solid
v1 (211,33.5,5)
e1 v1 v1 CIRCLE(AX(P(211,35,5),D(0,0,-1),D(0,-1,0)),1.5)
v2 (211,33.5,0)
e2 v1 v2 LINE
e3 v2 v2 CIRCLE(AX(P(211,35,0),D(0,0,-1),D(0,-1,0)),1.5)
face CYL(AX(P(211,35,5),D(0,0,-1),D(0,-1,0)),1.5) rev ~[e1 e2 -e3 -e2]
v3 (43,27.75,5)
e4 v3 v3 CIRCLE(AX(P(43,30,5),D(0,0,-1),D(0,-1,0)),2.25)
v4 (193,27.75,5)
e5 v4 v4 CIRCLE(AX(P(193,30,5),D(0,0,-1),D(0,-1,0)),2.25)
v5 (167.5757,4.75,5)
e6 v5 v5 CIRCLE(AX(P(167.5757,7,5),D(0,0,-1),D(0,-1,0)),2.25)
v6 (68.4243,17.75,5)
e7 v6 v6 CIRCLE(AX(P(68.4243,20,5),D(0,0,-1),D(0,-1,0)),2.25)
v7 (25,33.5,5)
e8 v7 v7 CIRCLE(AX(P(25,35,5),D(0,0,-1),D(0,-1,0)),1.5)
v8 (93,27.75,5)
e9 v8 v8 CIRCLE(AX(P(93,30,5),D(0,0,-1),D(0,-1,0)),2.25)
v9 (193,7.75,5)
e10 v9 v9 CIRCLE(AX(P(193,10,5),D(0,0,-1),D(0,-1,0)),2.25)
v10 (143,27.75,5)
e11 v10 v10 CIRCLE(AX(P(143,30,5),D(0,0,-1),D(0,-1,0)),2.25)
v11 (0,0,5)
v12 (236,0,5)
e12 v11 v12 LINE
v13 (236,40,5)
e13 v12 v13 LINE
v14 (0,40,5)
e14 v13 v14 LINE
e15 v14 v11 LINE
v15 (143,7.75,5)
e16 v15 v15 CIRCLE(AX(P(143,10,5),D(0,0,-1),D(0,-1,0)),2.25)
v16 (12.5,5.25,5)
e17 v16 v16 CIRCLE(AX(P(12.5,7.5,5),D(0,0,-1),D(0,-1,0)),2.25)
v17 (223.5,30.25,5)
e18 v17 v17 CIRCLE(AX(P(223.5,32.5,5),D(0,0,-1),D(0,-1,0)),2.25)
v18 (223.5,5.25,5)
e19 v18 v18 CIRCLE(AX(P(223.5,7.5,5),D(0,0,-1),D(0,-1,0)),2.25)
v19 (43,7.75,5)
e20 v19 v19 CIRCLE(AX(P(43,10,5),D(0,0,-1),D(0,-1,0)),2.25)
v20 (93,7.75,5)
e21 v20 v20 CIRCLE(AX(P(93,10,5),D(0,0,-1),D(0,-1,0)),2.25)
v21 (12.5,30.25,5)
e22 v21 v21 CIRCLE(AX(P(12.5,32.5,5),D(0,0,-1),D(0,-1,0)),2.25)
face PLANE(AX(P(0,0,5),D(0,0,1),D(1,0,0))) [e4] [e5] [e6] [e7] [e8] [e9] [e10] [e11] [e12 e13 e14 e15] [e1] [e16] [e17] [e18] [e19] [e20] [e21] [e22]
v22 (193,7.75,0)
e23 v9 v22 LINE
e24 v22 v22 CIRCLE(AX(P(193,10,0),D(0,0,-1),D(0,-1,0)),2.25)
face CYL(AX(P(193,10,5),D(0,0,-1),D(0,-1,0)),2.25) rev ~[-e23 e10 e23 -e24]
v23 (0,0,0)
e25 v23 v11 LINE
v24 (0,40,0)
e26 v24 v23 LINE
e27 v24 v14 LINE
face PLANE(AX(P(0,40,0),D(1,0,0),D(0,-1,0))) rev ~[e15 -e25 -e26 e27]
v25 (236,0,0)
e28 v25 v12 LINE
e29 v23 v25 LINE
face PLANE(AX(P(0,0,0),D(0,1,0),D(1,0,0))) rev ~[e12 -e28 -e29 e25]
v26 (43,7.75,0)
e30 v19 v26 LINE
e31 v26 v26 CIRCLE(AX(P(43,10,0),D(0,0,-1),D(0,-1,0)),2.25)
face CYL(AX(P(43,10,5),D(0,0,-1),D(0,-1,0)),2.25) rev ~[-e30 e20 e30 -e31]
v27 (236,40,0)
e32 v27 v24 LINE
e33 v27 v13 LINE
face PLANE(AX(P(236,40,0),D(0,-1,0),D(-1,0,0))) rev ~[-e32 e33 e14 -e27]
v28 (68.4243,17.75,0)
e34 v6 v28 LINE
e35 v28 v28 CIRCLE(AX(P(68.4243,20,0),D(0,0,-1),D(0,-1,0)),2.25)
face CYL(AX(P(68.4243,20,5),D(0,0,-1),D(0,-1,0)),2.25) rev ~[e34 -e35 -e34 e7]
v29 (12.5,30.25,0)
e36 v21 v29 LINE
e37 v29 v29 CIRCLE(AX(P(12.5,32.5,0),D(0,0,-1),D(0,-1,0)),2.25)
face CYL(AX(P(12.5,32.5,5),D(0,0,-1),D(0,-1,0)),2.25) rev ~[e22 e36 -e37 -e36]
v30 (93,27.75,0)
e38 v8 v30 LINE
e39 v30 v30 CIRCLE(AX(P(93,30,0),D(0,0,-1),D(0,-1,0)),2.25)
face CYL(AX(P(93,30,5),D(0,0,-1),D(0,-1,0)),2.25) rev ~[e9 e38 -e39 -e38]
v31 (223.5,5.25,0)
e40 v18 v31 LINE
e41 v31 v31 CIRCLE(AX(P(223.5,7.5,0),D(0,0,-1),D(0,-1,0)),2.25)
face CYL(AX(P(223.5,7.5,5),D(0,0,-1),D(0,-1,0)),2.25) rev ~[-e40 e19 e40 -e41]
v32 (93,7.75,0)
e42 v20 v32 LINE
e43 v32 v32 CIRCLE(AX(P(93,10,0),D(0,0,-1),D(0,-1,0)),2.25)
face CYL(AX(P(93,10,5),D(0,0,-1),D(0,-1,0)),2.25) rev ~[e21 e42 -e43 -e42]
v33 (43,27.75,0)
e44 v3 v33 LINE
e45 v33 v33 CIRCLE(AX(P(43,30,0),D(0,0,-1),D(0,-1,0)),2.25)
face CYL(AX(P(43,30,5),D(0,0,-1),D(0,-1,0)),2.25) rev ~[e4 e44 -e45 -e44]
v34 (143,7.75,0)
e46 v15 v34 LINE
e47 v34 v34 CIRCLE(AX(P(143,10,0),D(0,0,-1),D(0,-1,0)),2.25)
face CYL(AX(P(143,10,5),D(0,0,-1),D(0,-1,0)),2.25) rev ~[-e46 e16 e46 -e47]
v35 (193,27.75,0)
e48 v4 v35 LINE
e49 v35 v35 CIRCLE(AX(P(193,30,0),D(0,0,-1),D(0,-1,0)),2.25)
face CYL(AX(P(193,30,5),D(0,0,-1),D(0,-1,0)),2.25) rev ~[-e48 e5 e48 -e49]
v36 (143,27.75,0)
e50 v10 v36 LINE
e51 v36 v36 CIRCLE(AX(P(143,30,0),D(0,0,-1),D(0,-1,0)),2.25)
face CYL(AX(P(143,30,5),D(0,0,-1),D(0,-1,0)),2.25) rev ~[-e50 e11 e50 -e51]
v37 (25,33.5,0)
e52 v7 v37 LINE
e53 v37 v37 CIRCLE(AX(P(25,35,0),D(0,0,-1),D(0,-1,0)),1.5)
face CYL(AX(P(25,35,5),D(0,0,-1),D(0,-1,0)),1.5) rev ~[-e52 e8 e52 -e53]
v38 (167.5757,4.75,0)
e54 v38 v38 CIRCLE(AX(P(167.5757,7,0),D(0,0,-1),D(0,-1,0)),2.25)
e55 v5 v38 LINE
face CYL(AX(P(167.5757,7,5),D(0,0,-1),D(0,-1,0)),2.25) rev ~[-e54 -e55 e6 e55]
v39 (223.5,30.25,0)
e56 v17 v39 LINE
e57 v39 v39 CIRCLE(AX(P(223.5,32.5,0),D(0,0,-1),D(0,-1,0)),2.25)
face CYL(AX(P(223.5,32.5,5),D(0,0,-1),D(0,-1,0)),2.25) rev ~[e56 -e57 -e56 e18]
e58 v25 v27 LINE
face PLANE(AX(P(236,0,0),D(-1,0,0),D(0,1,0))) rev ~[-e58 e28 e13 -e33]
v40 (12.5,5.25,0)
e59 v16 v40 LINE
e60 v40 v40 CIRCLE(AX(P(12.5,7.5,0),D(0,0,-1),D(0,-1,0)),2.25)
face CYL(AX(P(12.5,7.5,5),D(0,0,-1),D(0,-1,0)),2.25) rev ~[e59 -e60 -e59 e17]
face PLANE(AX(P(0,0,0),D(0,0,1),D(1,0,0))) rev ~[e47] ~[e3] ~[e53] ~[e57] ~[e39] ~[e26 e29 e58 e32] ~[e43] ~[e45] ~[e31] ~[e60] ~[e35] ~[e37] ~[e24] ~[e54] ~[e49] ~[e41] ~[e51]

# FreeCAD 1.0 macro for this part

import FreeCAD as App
import Part
import Sketcher
from FreeCAD import Vector

doc = App.newDocument("Part")
body = doc.addObject("PartDesign::Body", "Body")

# Sketch on XY plane
sketch1 = doc.addObject("Sketcher::SketchObject", "Sketch")
body.addObject(sketch1)
sketch1.AttachmentSupport = (doc.XY_Plane, [""])
sketch1.MapMode = "FlatFace"
sketch1.addGeometry(Part.LineSegment(Vector(0, 40, 0), Vector(0, 0, 0)), False)
sketch1.addGeometry(Part.LineSegment(Vector(0, 0, 0), Vector(236, 0, 0)), False)
sketch1.addGeometry(Part.LineSegment(Vector(236, 0, 0), Vector(236, 40, 0)), False)
sketch1.addGeometry(Part.LineSegment(Vector(236, 40, 0), Vector(0, 40, 0)), False)
sketch1.addConstraint(Sketcher.Constraint("Coincident", 0, 2, 1, 1))
sketch1.addConstraint(Sketcher.Constraint("Coincident", 1, 2, 2, 1))
sketch1.addConstraint(Sketcher.Constraint("Coincident", 2, 2, 3, 1))
sketch1.addConstraint(Sketcher.Constraint("Coincident", 3, 2, 0, 1))
sketch1.addConstraint(Sketcher.Constraint("Vertical", 0))
sketch1.addConstraint(Sketcher.Constraint("Horizontal", 1))
sketch1.addConstraint(Sketcher.Constraint("Vertical", 2))
sketch1.addConstraint(Sketcher.Constraint("Horizontal", 3))
sketch1.addConstraint(Sketcher.Constraint("Coincident", 0, 2, -1, 1))
sketch1.addConstraint(Sketcher.Constraint("DistanceX", 1, 1, 1, 2, 236.0))
sketch1.addConstraint(Sketcher.Constraint("DistanceY", 0, 2, 0, 1, 40.0))
pad1 = doc.addObject("PartDesign::Pad", "Pad")
body.addObject(pad1)
pad1.Profile = sketch1
pad1.Length = 5

# Sketch on XY plane
sketch2 = doc.addObject("Sketcher::SketchObject", "Sketch001")
body.addObject(sketch2)
sketch2.AttachmentSupport = (doc.XY_Plane, [""])
sketch2.MapMode = "FlatFace"
sketch2.AttachmentOffset = App.Placement(Vector(0, 0, 5), App.Rotation())
sketch2.addGeometry(Part.Circle(Vector(43, 30, 0), Vector(0, 0, 1), 2.2), False)
sketch2.addGeometry(Part.Circle(Vector(43, 10, 0), Vector(0, 0, 1), 2.2), False)
sketch2.addConstraint(Sketcher.Constraint("Equal", 0, 1))
sketch2.addConstraint(Sketcher.Constraint("Vertical", 0, 3, 1, 3))
sketch2.addConstraint(Sketcher.Constraint("Diameter", 0, 4.5))
sketch2.addConstraint(Sketcher.Constraint("DistanceX", -1, 1, 0, 3, 43.0))
sketch2.addConstraint(Sketcher.Constraint("DistanceY", -1, 1, 0, 3, 30.0))
sketch2.addConstraint(Sketcher.Constraint("DistanceY", -1, 1, 1, 3, 10.0))
doc.recompute()
hole = doc.addObject("PartDesign::Hole", "Hole")
body.addObject(hole)
hole.Profile = sketch2
hole.ThreadType = "None"
hole.Diameter = 4.5
hole.DepthType = "ThroughAll"
doc.recompute()

linearpattern = doc.addObject("PartDesign::LinearPattern", "LinearPattern")
body.addObject(linearpattern)
linearpattern.Originals = [hole]
linearpattern.Direction = (doc.X_Axis, [""])
linearpattern.Mode = "offset"
linearpattern.Offset = 50
linearpattern.Occurrences = 4
body.Tip = linearpattern

# Sketch on XY plane
sketch3 = doc.addObject("Sketcher::SketchObject", "Sketch002")
body.addObject(sketch3)
sketch3.AttachmentSupport = (doc.XY_Plane, [""])
sketch3.MapMode = "FlatFace"
sketch3.AttachmentOffset = App.Placement(Vector(0, 0, 5), App.Rotation())
sketch3.addGeometry(Part.Circle(Vector(68.4, 20, 0), Vector(0, 0, 1), 2.2), False)
sketch3.addGeometry(Part.Circle(Vector(167.6, 7, 0), Vector(0, 0, 1), 2.2), False)
sketch3.addConstraint(Sketcher.Constraint("Equal", 0, 1))
sketch3.addConstraint(Sketcher.Constraint("Diameter", 0, 4.5))
sketch3.addConstraint(Sketcher.Constraint("DistanceY", -1, 1, 0, 3, 20.0))
sketch3.addConstraint(Sketcher.Constraint("DistanceY", -1, 1, 1, 3, 7.0))
sketch3.addConstraint(Sketcher.Constraint("DistanceX", -1, 1, 0, 3, 68.4243))
sketch3.addConstraint(Sketcher.Constraint("DistanceX", -1, 1, 1, 3, 167.5757))
doc.recompute()
hole2 = doc.addObject("PartDesign::Hole", "Hole001")
body.addObject(hole2)
hole2.Profile = sketch3
hole2.ThreadType = "None"
hole2.Diameter = 4.5
hole2.DepthType = "ThroughAll"

# Sketch on XY plane
sketch4 = doc.addObject("Sketcher::SketchObject", "Sketch003")
body.addObject(sketch4)
sketch4.AttachmentSupport = (doc.XY_Plane, [""])
sketch4.MapMode = "FlatFace"
sketch4.AttachmentOffset = App.Placement(Vector(0, 0, 5), App.Rotation())
sketch4.addGeometry(Part.Circle(Vector(12.5, 32.5, 0), Vector(0, 0, 1), 2.2), False)
sketch4.addGeometry(Part.Circle(Vector(12.5, 7.5, 0), Vector(0, 0, 1), 2.2), False)
sketch4.addGeometry(Part.Circle(Vector(223.5, 32.5, 0), Vector(0, 0, 1), 2.2), False)
sketch4.addGeometry(Part.Circle(Vector(223.5, 7.5, 0), Vector(0, 0, 1), 2.2), False)
sketch4.addConstraint(Sketcher.Constraint("Equal", 0, 1))
sketch4.addConstraint(Sketcher.Constraint("Equal", 1, 2))
sketch4.addConstraint(Sketcher.Constraint("Equal", 2, 3))
sketch4.addConstraint(Sketcher.Constraint("Horizontal", 0, 3, 2, 3))
sketch4.addConstraint(Sketcher.Constraint("Horizontal", 1, 3, 3, 3))
sketch4.addConstraint(Sketcher.Constraint("Vertical", 0, 3, 1, 3))
sketch4.addConstraint(Sketcher.Constraint("Vertical", 2, 3, 3, 3))
sketch4.addConstraint(Sketcher.Constraint("Diameter", 0, 4.5))
sketch4.addConstraint(Sketcher.Constraint("DistanceY", 1, 3, 0, 3, 25.0))
sketch4.addConstraint(Sketcher.Constraint("DistanceX", 0, 3, 2, 3, 211.0))
sketch4.addConstraint(Sketcher.Constraint("DistanceX", -1, 1, 0, 3, 12.5))
sketch4.addConstraint(Sketcher.Constraint("DistanceY", -1, 1, 0, 3, 32.5))
doc.recompute()
hole3 = doc.addObject("PartDesign::Hole", "Hole002")
body.addObject(hole3)
hole3.Profile = sketch4
hole3.ThreadType = "None"
hole3.Diameter = 4.5
hole3.DepthType = "ThroughAll"

# Sketch on XY plane
sketch5 = doc.addObject("Sketcher::SketchObject", "Sketch004")
body.addObject(sketch5)
sketch5.AttachmentSupport = (doc.XY_Plane, [""])
sketch5.MapMode = "FlatFace"
sketch5.AttachmentOffset = App.Placement(Vector(0, 0, 5), App.Rotation())
sketch5.addGeometry(Part.Circle(Vector(25, 35, 0), Vector(0, 0, 1), 1.5), False)
sketch5.addGeometry(Part.Circle(Vector(211, 35, 0), Vector(0, 0, 1), 1.5), False)
sketch5.addConstraint(Sketcher.Constraint("Equal", 0, 1))
sketch5.addConstraint(Sketcher.Constraint("Horizontal", 0, 3, 1, 3))
sketch5.addConstraint(Sketcher.Constraint("Diameter", 0, 3.0))
sketch5.addConstraint(Sketcher.Constraint("DistanceX", -1, 1, 0, 3, 25.0))
sketch5.addConstraint(Sketcher.Constraint("DistanceY", -1, 1, 0, 3, 35.0))
sketch5.addConstraint(Sketcher.Constraint("DistanceX", -1, 1, 1, 3, 211.0))
doc.recompute()
hole4 = doc.addObject("PartDesign::Hole", "Hole003")
body.addObject(hole4)
hole4.Profile = sketch5
hole4.ThreadType = "None"
hole4.Diameter = 3
hole4.DepthType = "ThroughAll"

doc.recompute()
